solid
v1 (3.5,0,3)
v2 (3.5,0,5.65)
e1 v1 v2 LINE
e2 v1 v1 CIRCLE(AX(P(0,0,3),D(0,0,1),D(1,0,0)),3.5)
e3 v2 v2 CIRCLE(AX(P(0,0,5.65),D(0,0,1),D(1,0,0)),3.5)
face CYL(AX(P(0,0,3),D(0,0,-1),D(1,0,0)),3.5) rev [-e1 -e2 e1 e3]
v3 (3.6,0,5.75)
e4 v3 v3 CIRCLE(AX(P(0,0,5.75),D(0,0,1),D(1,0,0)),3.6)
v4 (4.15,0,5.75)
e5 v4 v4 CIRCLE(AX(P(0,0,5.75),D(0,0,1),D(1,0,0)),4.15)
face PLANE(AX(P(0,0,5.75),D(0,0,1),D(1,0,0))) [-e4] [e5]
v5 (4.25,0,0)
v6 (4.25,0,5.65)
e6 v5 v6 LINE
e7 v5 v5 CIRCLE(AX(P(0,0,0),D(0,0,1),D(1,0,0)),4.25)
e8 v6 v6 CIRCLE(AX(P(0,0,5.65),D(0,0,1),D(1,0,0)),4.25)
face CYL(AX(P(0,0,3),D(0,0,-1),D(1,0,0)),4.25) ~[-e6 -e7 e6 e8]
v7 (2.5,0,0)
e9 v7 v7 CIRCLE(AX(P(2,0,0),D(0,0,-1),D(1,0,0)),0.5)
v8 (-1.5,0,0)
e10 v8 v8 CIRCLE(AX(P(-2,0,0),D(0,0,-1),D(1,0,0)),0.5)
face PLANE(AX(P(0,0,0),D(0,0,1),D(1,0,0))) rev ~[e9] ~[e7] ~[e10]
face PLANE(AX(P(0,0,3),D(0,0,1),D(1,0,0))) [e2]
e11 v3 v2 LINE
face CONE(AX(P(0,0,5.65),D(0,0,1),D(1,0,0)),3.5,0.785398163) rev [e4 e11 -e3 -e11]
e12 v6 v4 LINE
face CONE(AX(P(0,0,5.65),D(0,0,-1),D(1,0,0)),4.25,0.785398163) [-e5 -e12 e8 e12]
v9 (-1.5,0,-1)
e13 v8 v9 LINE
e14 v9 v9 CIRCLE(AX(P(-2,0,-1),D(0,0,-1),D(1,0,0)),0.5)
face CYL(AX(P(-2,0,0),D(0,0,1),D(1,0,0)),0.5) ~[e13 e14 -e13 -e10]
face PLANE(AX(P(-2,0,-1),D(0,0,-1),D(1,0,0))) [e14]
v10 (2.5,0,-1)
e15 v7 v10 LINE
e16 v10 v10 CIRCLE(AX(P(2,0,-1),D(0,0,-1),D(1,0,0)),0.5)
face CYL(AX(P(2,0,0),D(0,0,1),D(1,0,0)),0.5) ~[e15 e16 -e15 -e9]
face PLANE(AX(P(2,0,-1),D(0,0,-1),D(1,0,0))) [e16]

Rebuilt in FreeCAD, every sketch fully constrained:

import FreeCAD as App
import Part
import Sketcher

V = App.Vector


def edges_at(feature, points):
    """Names of the edges that pass closest to the given points."""
    edges = feature.Shape.Edges
    near = lambda p: min(range(len(edges)), key=lambda i: edges[i].distToShape(Part.Vertex(*p))[0])
    return sorted({f"Edge{near(p) + 1}" for p in points})

doc = App.newDocument("Part")
params = doc.addObject("Spreadsheet::Sheet", "Params")
for row, (alias, value) in enumerate([
    ("sketch1_diameter", "8.5 mm"),
    ("pad1_length", "3 mm"),
    ("sketch2_diameter", "7 mm"),
    ("sketch2_diameter2", "8.5 mm"),
    ("pad2_length", "2.75 mm"),
    ("sketch3_diameter", "1 mm"),
    ("pad3_length", "1 mm"),
    ("chamfer_size", "0.1 mm"),
], start=1):
    params.set(f"A{row}", alias)
    params.set(f"B{row}", "=" + value)
    params.setAlias(f"B{row}", alias)

body = doc.addObject("PartDesign::Body", "Body")

# Sketch on XY plane
sketch1 = doc.addObject("Sketcher::SketchObject", "Sketch")
body.addObject(sketch1)
sketch1.AttachmentSupport = (doc.XY_Plane, [""])
sketch1.MapMode = "FlatFace"
sketch1.addGeometry(Part.Circle(V(0, 0, 0), V(0, 0, 1), 4.2), False)
sketch1.addConstraint(Sketcher.Constraint("Coincident", 0, 3, -1, 1))
sketch1.addConstraint(Sketcher.Constraint("Diameter", 0, 8.5))
sketch1.setExpression("Constraints[1]", "Params.sketch1_diameter")
pad1 = doc.addObject("PartDesign::Pad", "Pad")
body.addObject(pad1)
pad1.Profile = sketch1
pad1.setExpression("Length", "Params.pad1_length")

# Sketch on XY plane
sketch2 = doc.addObject("Sketcher::SketchObject", "Sketch001")
body.addObject(sketch2)
sketch2.AttachmentSupport = (doc.XY_Plane, [""])
sketch2.MapMode = "FlatFace"
sketch2.AttachmentOffset = App.Placement(V(0, 0, 3), App.Rotation())
sketch2.addGeometry(Part.Circle(V(0, 0, 0), V(0, 0, 1), 4.2), False)
sketch2.addGeometry(Part.Circle(V(0, 0, 0), V(0, 0, 1), 3.5), False)
sketch2.addConstraint(Sketcher.Constraint("Coincident", 0, 3, -1, 1))
sketch2.addConstraint(Sketcher.Constraint("Coincident", 1, 3, -1, 1))
sketch2.addConstraint(Sketcher.Constraint("Diameter", 1, 7.0))
sketch2.addConstraint(Sketcher.Constraint("Diameter", 0, 8.5))
sketch2.setExpression("Constraints[2]", "Params.sketch2_diameter")
sketch2.setExpression("Constraints[3]", "Params.sketch2_diameter2")
pad2 = doc.addObject("PartDesign::Pad", "Pad001")
body.addObject(pad2)
pad2.Profile = sketch2
pad2.setExpression("Length", "Params.pad2_length")

# Sketch on XY plane
sketch3 = doc.addObject("Sketcher::SketchObject", "Sketch002")
body.addObject(sketch3)
sketch3.AttachmentSupport = (doc.XY_Plane, [""])
sketch3.MapMode = "FlatFace"
sketch3.addGeometry(Part.Circle(V(-2, 0, 0), V(0, 0, 1), 0.5), False)
sketch3.addGeometry(Part.Circle(V(2, 0, 0), V(0, 0, 1), 0.5), False)
sketch3.addConstraint(Sketcher.Constraint("Equal", 0, 1))
sketch3.addConstraint(Sketcher.Constraint("Symmetric", 0, 3, 1, 3, -1, 1))
sketch3.addConstraint(Sketcher.Constraint("PointOnObject", 0, 3, -1))
sketch3.addConstraint(Sketcher.Constraint("Diameter", 0, 1.0))
sketch3.addConstraint(Sketcher.Constraint("DistanceX", 0, 3, -1, 1, 2.0))
sketch3.setExpression("Constraints[3]", "Params.sketch3_diameter")
pad3 = doc.addObject("PartDesign::Pad", "Pad002")
body.addObject(pad3)
pad3.Profile = sketch3
pad3.setExpression("Length", "Params.pad3_length")
pad3.Reversed = True
doc.recompute()

chamfer = doc.addObject("PartDesign::Chamfer", "Chamfer")
body.addObject(chamfer)
chamfer.Base = (pad3, edges_at(pad3, [(-3.5, 0, 5.75), (-4.25, 0, 5.75)]))
chamfer.setExpression("Size", "Params.chamfer_size")

doc.recompute()
